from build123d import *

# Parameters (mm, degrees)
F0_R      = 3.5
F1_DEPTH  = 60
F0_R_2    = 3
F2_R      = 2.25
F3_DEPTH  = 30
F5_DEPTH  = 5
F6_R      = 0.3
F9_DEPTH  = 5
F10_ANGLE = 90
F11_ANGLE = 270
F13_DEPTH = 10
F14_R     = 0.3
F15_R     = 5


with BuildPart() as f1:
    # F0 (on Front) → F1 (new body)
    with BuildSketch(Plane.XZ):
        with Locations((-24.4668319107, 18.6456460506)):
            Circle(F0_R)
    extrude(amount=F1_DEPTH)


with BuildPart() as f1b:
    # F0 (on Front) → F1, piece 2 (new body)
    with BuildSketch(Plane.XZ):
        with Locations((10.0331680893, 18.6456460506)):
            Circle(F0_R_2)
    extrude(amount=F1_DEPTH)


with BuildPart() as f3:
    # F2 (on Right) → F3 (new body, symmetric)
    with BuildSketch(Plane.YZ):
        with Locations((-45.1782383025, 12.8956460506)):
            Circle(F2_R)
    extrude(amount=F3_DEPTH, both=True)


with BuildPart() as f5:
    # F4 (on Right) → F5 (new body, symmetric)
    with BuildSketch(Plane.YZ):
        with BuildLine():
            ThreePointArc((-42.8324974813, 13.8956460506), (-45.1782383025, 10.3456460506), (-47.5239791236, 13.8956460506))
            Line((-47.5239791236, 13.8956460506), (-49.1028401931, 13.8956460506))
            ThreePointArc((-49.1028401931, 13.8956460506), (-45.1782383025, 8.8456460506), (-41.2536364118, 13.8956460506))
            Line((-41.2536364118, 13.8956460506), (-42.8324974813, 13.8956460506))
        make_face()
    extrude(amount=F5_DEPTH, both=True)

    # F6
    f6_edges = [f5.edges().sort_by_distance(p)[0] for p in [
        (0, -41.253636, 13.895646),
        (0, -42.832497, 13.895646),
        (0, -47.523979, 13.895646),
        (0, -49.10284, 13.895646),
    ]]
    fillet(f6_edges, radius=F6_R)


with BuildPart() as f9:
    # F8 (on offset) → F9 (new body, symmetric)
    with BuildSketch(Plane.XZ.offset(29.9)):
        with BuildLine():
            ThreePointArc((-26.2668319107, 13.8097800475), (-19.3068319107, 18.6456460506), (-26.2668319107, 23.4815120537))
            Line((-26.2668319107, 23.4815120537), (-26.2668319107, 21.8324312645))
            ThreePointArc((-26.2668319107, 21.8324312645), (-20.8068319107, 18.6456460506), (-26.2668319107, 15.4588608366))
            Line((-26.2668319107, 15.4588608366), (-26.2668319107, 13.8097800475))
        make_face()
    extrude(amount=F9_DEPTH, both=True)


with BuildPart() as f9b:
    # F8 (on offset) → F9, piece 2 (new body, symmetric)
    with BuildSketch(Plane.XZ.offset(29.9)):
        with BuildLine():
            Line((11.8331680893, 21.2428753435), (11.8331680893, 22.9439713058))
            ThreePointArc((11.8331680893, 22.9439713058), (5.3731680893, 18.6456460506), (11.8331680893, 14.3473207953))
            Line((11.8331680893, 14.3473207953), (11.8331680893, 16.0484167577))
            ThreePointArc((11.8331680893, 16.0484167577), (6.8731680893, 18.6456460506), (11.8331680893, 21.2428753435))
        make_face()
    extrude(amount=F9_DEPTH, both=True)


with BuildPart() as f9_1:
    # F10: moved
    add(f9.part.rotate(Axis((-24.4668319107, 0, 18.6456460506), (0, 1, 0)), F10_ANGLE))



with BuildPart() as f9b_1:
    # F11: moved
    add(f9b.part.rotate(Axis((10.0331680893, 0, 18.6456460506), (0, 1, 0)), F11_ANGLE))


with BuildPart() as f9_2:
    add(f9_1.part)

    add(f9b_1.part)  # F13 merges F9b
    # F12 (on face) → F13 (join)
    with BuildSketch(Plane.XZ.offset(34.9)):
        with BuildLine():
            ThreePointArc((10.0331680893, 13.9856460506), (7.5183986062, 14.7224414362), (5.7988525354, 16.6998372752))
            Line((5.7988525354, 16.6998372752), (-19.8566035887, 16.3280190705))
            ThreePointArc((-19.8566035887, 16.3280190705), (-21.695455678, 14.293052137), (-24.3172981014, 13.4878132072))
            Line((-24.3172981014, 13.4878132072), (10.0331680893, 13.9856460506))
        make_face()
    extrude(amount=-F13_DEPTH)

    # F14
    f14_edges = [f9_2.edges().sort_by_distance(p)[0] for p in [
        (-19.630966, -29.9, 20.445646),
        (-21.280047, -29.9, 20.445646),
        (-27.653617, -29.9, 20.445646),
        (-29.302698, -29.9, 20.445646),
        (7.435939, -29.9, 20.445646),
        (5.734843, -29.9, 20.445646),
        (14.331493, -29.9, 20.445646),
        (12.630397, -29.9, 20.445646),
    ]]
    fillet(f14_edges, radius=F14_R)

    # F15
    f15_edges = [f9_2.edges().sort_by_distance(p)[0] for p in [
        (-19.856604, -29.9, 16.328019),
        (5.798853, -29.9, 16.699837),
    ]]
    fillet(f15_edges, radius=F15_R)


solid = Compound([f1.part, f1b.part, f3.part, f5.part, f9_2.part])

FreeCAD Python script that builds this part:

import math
import FreeCAD as App
import Part
import Sketcher


def edges_at(feature, points):
    """Names of the edges that pass closest to the given points."""
    edges = feature.Shape.Edges
    near = lambda p: min(range(len(edges)), key=lambda i: edges[i].distToShape(Part.Vertex(*p))[0])
    return sorted({f"Edge{near(p) + 1}" for p in points})

doc = App.newDocument("Part")
params = doc.addObject("Spreadsheet::Sheet", "Params")
for row, (alias, value) in enumerate([
    ("sketch1_diameter", "7 mm"),
    ("pad1_length", "60 mm"),
    ("sketch2_diameter", "6 mm"),
    ("pad2_length", "60 mm"),
    ("sketch3_diameter", "4.5 mm"),
    ("pad3_length", "60 mm"),
    ("sketch4_radius", "2.55 mm"),
    ("sketch4_radius2", "4.05 mm"),
    ("sketch4_height", "1 mm"),
    ("pad4_length", "10 mm"),
    ("fillet_radius", "0.3 mm"),
    ("sketch5_radius", "5.16 mm"),
    ("sketch5_radius2", "3.66 mm"),
    ("sketch5_width", "1.8 mm"),
    ("pad5_length", "10 mm"),
    ("sketch6_radius", "4.66 mm"),
    ("sketch6_radius2", "3.16 mm"),
    ("pad6_length", "10 mm"),
    ("sketch7_radius", "4.66 mm"),
    ("sketch7_radius2", "5.16 mm"),
    ("pad7_length", "10 mm"),
    ("fillet2_radius", "0.3 mm"),
    ("fillet3_radius", "5 mm"),
], start=1):
    params.set(f"A{row}", alias)
    params.set(f"B{row}", "=" + value)
    params.setAlias(f"B{row}", alias)

body = doc.addObject("PartDesign::Body", "Body")

# Sketch on XZ plane
sketch1 = body.newObject("Sketcher::SketchObject", "Sketch")
sketch1.AttachmentSupport = (doc.getObject("XZ_Plane"), [""])
sketch1.MapMode = "FlatFace"
sketch1.addGeometry(Part.Circle(App.Vector(-24.5, 18.6, 0), App.Vector(0, 0, 1), 3.5), False)
sketch1.addConstraint(Sketcher.Constraint("Diameter", 0, 7.0))
sketch1.addConstraint(Sketcher.Constraint("DistanceX", 0, 3, -1, 1, 24.466832))
sketch1.addConstraint(Sketcher.Constraint("DistanceY", -1, 1, 0, 3, 18.645646))
sketch1.setExpression("Constraints[0]", "Params.sketch1_diameter")
pad1 = body.newObject("PartDesign::Pad", "Pad")
pad1.Profile = sketch1
pad1.setExpression("Length", "Params.pad1_length")
body2 = doc.addObject("PartDesign::Body", "Body001")

# Sketch on XZ plane
sketch2 = body2.newObject("Sketcher::SketchObject", "Sketch001")
sketch2.AttachmentSupport = (doc.getObject("XZ_Plane001"), [""])
sketch2.MapMode = "FlatFace"
sketch2.addGeometry(Part.Circle(App.Vector(10, 18.6, 0), App.Vector(0, 0, 1), 3), False)
sketch2.addConstraint(Sketcher.Constraint("Diameter", 0, 6.0))
sketch2.addConstraint(Sketcher.Constraint("DistanceX", -1, 1, 0, 3, 10.033168))
sketch2.addConstraint(Sketcher.Constraint("DistanceY", -1, 1, 0, 3, 18.645646))
sketch2.setExpression("Constraints[0]", "Params.sketch2_diameter")
pad2 = body2.newObject("PartDesign::Pad", "Pad001")
pad2.Profile = sketch2
pad2.setExpression("Length", "Params.pad2_length")
body3 = doc.addObject("PartDesign::Body", "Body002")

# Sketch on YZ plane
sketch3 = body3.newObject("Sketcher::SketchObject", "Sketch002")
sketch3.AttachmentSupport = (doc.getObject("YZ_Plane002"), [""])
sketch3.MapMode = "FlatFace"
sketch3.addGeometry(Part.Circle(App.Vector(-45.2, 12.9, 0), App.Vector(0, 0, 1), 2.2), False)
sketch3.addConstraint(Sketcher.Constraint("Diameter", 0, 4.5))
sketch3.addConstraint(Sketcher.Constraint("DistanceX", 0, 3, -1, 1, 45.178238))
sketch3.addConstraint(Sketcher.Constraint("DistanceY", -1, 1, 0, 3, 12.895646))
sketch3.setExpression("Constraints[0]", "Params.sketch3_diameter")
pad3 = body3.newObject("PartDesign::Pad", "Pad002")
pad3.Profile = sketch3
pad3.setExpression("Length", "Params.pad3_length")
pad3.Midplane = True
body4 = doc.addObject("PartDesign::Body", "Body003")

# Sketch on YZ plane
sketch4 = body4.newObject("Sketcher::SketchObject", "Sketch003")
sketch4.AttachmentSupport = (doc.getObject("YZ_Plane003"), [""])
sketch4.MapMode = "FlatFace"
sketch4.addGeometry(Part.ArcOfCircle(Part.Circle(App.Vector(-45.2, 12.9, 0), App.Vector(0, 0, 1), 2.5), math.radians(157), math.radians(383)), False)
sketch4.addGeometry(Part.LineSegment(App.Vector(-47.5, 13.9, 0), App.Vector(-49.1, 13.9, 0)), False)
sketch4.addGeometry(Part.ArcOfCircle(Part.Circle(App.Vector(-45.2, 12.9, 0), App.Vector(0, 0, 1), 4), math.radians(166), math.radians(374)), False)
sketch4.addGeometry(Part.LineSegment(App.Vector(-41.3, 13.9, 0), App.Vector(-42.8, 13.9, 0)), False)
sketch4.addConstraint(Sketcher.Constraint("Coincident", 0, 1, 1, 1))
sketch4.addConstraint(Sketcher.Constraint("Coincident", 1, 2, 2, 1))
sketch4.addConstraint(Sketcher.Constraint("Coincident", 2, 2, 3, 1))
sketch4.addConstraint(Sketcher.Constraint("Coincident", 3, 2, 0, 2))
sketch4.addConstraint(Sketcher.Constraint("Horizontal", 1))
sketch4.addConstraint(Sketcher.Constraint("Horizontal", 3))
sketch4.addConstraint(Sketcher.Constraint("Coincident", 2, 3, 0, 3))
sketch4.addConstraint(Sketcher.Constraint("Horizontal", 1, 2, 2, 2))
sketch4.addConstraint(Sketcher.Constraint("Radius", 0, 2.55))
sketch4.addConstraint(Sketcher.Constraint("Radius", 2, 4.05))
sketch4.addConstraint(Sketcher.Constraint("DistanceY", 0, 3, 0, 1, 1.0))
sketch4.addConstraint(Sketcher.Constraint("DistanceX", 0, 3, -1, 1, 45.178238))
sketch4.addConstraint(Sketcher.Constraint("DistanceY", -1, 1, 0, 3, 12.895646))
sketch4.setExpression("Constraints[8]", "Params.sketch4_radius")
sketch4.setExpression("Constraints[9]", "Params.sketch4_radius2")
sketch4.setExpression("Constraints[10]", "Params.sketch4_height")
pad4 = body4.newObject("PartDesign::Pad", "Pad003")
pad4.Profile = sketch4
pad4.setExpression("Length", "Params.pad4_length")
pad4.Midplane = True
doc.recompute()

fillet = body4.newObject("PartDesign::Fillet", "Fillet")
fillet.Base = (pad4, edges_at(pad4, [
    (0, -41.254, 13.896),
    (0, -42.832, 13.896),
    (0, -47.524, 13.896),
    (0, -49.103, 13.896),
]))
fillet.setExpression("Radius", "Params.fillet_radius")
body5 = doc.addObject("PartDesign::Body", "Body004")

# Sketch on XZ plane
sketch5 = body5.newObject("Sketcher::SketchObject", "Sketch004")
sketch5.AttachmentSupport = (doc.getObject("XZ_Plane004"), [""])
sketch5.MapMode = "FlatFace"
sketch5.AttachmentOffset = App.Placement(App.Vector(0, 0, 29.9), App.Rotation())
sketch5.addGeometry(Part.ArcOfCircle(Part.Circle(App.Vector(-24.5, 18.6, 0), App.Vector(0, 0, 1), 5.2), math.radians(-110), math.radians(110)), False)
sketch5.addGeometry(Part.LineSegment(App.Vector(-26.3, 23.5, 0), App.Vector(-26.3, 21.8, 0)), False)
sketch5.addGeometry(Part.ArcOfCircle(Part.Circle(App.Vector(-24.5, 18.6, 0), App.Vector(0, 0, 1), 3.7), math.radians(-119), math.radians(119)), False)
sketch5.addGeometry(Part.LineSegment(App.Vector(-26.3, 15.5, 0), App.Vector(-26.3, 13.8, 0)), False)
sketch5.addConstraint(Sketcher.Constraint("Coincident", 0, 2, 1, 1))
sketch5.addConstraint(Sketcher.Constraint("Coincident", 1, 2, 2, 2))
sketch5.addConstraint(Sketcher.Constraint("Coincident", 2, 1, 3, 1))
sketch5.addConstraint(Sketcher.Constraint("Coincident", 3, 2, 0, 1))
sketch5.addConstraint(Sketcher.Constraint("Vertical", 1))
sketch5.addConstraint(Sketcher.Constraint("Vertical", 3))
sketch5.addConstraint(Sketcher.Constraint("Coincident", 2, 3, 0, 3))
sketch5.addConstraint(Sketcher.Constraint("Vertical", 1, 2, 2, 1))
sketch5.addConstraint(Sketcher.Constraint("Radius", 0, 5.16))
sketch5.addConstraint(Sketcher.Constraint("Radius", 2, 3.66))
sketch5.addConstraint(Sketcher.Constraint("DistanceX", 0, 2, 0, 3, 1.8))
sketch5.addConstraint(Sketcher.Constraint("DistanceX", 0, 3, -1, 1, 24.466832))
sketch5.addConstraint(Sketcher.Constraint("DistanceY", -1, 1, 1, 2, 21.832431))
sketch5.setExpression("Constraints[8]", "Params.sketch5_radius")
sketch5.setExpression("Constraints[9]", "Params.sketch5_radius2")
sketch5.setExpression("Constraints[10]", "Params.sketch5_width")
pad5 = body5.newObject("PartDesign::Pad", "Pad004")
pad5.Profile = sketch5
pad5.setExpression("Length", "Params.pad5_length")
pad5.Midplane = True
body6 = doc.addObject("PartDesign::Body", "Body005")

# Sketch on XZ plane
sketch6 = body6.newObject("Sketcher::SketchObject", "Sketch005")
sketch6.AttachmentSupport = (doc.getObject("XZ_Plane005"), [""])
sketch6.MapMode = "FlatFace"
sketch6.AttachmentOffset = App.Placement(App.Vector(0, 0, 29.9), App.Rotation())
sketch6.addGeometry(Part.LineSegment(App.Vector(11.8, 21.2, 0), App.Vector(11.8, 22.9, 0)), False)
sketch6.addGeometry(Part.ArcOfCircle(Part.Circle(App.Vector(10, 18.6, 0), App.Vector(0, 0, 1), 4.7), math.radians(67), math.radians(293)), False)
sketch6.addGeometry(Part.LineSegment(App.Vector(11.8, 14.3, 0), App.Vector(11.8, 16, 0)), False)
sketch6.addGeometry(Part.ArcOfCircle(Part.Circle(App.Vector(10, 18.6, 0), App.Vector(0, 0, 1), 3.2), math.radians(55), math.radians(305)), False)
sketch6.addConstraint(Sketcher.Constraint("Coincident", 0, 2, 1, 1))
sketch6.addConstraint(Sketcher.Constraint("Coincident", 1, 2, 2, 1))
sketch6.addConstraint(Sketcher.Constraint("Coincident", 2, 2, 3, 2))
sketch6.addConstraint(Sketcher.Constraint("Coincident", 3, 1, 0, 1))
sketch6.addConstraint(Sketcher.Constraint("Vertical", 0))
sketch6.addConstraint(Sketcher.Constraint("Vertical", 2))
sketch6.addConstraint(Sketcher.Constraint("Coincident", 3, 3, 1, 3))
sketch6.addConstraint(Sketcher.Constraint("Vertical", 0, 2, 1, 2))
sketch6.addConstraint(Sketcher.Constraint("Radius", 1, 4.66))
sketch6.addConstraint(Sketcher.Constraint("Radius", 3, 3.16))
sketch6.addConstraint(Sketcher.Constraint("DistanceX", 1, 3, 0, 2, 1.8))
sketch6.addConstraint(Sketcher.Constraint("DistanceX", -1, 1, 1, 3, 10.033168))
sketch6.addConstraint(Sketcher.Constraint("DistanceY", -1, 1, 0, 2, 22.943971))
sketch6.setExpression("Constraints[8]", "Params.sketch6_radius")
sketch6.setExpression("Constraints[9]", "Params.sketch6_radius2")
pad6 = body6.newObject("PartDesign::Pad", "Pad005")
pad6.Profile = sketch6
pad6.setExpression("Length", "Params.pad6_length")
pad6.Midplane = True
body7 = doc.addObject("PartDesign::Body", "Body006")
doc.recompute()

body5.Placement = App.Placement(App.Vector(-43.112478, 0, -5.821186), App.Rotation(App.Vector(0, 1, 0), 90))
boolean = body7.newObject("PartDesign::Boolean", "Boolean")
boolean.Type = "Fuse"
boolean.addObjects([body5])
body8 = doc.addObject("PartDesign::Body", "Body007")
doc.recompute()

body6.Placement = App.Placement(App.Vector(28.678814, 0, 8.612478), App.Rotation(App.Vector(0, 1, 0), 270))
boolean2 = body8.newObject("PartDesign::Boolean", "Boolean001")
boolean2.Type = "Fuse"
boolean2.addObjects([body6])
body7.AllowCompound = True
doc.recompute()

boolean3 = body7.newObject("PartDesign::Boolean", "Boolean002")
boolean3.Type = "Fuse"
boolean3.addObjects([body8])

# Sketch on XZ plane
sketch7 = body7.newObject("Sketcher::SketchObject", "Sketch006")
sketch7.AttachmentSupport = (doc.getObject("XZ_Plane006"), [""])
sketch7.MapMode = "FlatFace"
sketch7.AttachmentOffset = App.Placement(App.Vector(0, 0, 34.9), App.Rotation())
sketch7.addGeometry(Part.ArcOfCircle(Part.Circle(App.Vector(10, 18.6, 0), App.Vector(0, 0, 1), 4.7), math.radians(-155), math.radians(-90)), False)
sketch7.addGeometry(Part.LineSegment(App.Vector(5.8, 16.7, 0), App.Vector(-19.9, 16.3, 0)), False)
sketch7.addGeometry(Part.ArcOfCircle(Part.Circle(App.Vector(-24.5, 18.6, 0), App.Vector(0, 0, 1), 5.2), math.radians(-88), math.radians(-27)), False)
sketch7.addGeometry(Part.LineSegment(App.Vector(-24.3, 13.5, 0), App.Vector(10, 14, 0)), False)
sketch7.addConstraint(Sketcher.Constraint("Coincident", 0, 1, 1, 1))
sketch7.addConstraint(Sketcher.Constraint("Coincident", 1, 2, 2, 2))
sketch7.addConstraint(Sketcher.Constraint("Coincident", 2, 1, 3, 1))
sketch7.addConstraint(Sketcher.Constraint("Coincident", 3, 2, 0, 2))
sketch7.addConstraint(Sketcher.Constraint("Parallel", 1, 3))
sketch7.addConstraint(Sketcher.Constraint("Horizontal", 0, 3, 2, 3))
sketch7.addConstraint(Sketcher.Constraint("Vertical", 0, 3, 3, 2))
sketch7.addConstraint(Sketcher.Constraint("Radius", 0, 4.66))
sketch7.addConstraint(Sketcher.Constraint("Radius", 2, 5.16))
sketch7.addConstraint(Sketcher.Constraint("DistanceX", 2, 3, 0, 3, 34.5))
sketch7.addConstraint(Sketcher.Constraint("DistanceX", 2, 1, -1, 1, 24.317298))
sketch7.addConstraint(Sketcher.Constraint("Distance", 1, 25.65815))
sketch7.addConstraint(Sketcher.Constraint("DistanceX", -1, 1, 0, 3, 10.033168))
sketch7.addConstraint(Sketcher.Constraint("DistanceY", -1, 1, 1, 2, 16.328019))
sketch7.setExpression("Constraints[7]", "Params.sketch7_radius")
sketch7.setExpression("Constraints[8]", "Params.sketch7_radius2")
pad7 = body7.newObject("PartDesign::Pad", "Pad006")
pad7.Profile = sketch7
pad7.setExpression("Length", "Params.pad7_length")
pad7.Reversed = True
doc.recompute()

fillet2 = body7.newObject("PartDesign::Fillet", "Fillet001")
fillet2.Base = (pad7, edges_at(pad7, [
    (-19.631, -29.9, 20.446),
    (-21.28, -29.9, 20.446),
    (-27.654, -29.9, 20.446),
    (-29.303, -29.9, 20.446),
    (7.436, -29.9, 20.446),
    (5.735, -29.9, 20.446),
    (14.331, -29.9, 20.446),
    (12.63, -29.9, 20.446),
]))
fillet2.setExpression("Radius", "Params.fillet2_radius")
doc.recompute()

fillet3 = body7.newObject("PartDesign::Fillet", "Fillet002")
fillet3.Base = (fillet2, edges_at(fillet2, [(-19.857, -29.9, 16.328), (5.799, -29.9, 16.7)]))
fillet3.setExpression("Radius", "Params.fillet3_radius")

doc.recompute()
